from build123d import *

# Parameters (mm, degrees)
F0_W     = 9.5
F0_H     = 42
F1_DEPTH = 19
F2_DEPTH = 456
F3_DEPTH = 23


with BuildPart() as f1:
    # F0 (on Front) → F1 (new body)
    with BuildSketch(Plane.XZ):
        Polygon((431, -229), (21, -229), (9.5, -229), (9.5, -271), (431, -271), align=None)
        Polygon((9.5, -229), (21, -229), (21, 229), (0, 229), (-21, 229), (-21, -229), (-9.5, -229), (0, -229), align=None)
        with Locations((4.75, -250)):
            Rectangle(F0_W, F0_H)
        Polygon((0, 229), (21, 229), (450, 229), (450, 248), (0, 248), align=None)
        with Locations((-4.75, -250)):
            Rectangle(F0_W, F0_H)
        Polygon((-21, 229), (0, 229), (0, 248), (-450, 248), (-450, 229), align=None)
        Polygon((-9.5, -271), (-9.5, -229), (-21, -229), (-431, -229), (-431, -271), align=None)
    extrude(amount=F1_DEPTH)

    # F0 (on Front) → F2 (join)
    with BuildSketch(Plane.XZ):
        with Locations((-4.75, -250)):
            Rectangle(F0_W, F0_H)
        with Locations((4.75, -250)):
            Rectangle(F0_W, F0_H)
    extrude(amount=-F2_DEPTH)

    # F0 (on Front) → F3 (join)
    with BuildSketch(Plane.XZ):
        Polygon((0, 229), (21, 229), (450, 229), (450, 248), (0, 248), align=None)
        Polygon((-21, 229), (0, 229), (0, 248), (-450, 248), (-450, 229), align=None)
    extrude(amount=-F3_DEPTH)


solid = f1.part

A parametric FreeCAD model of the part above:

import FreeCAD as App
import Part
import Sketcher


def add_polygon(sketch, points):
    """Adds a closed chain of lines whose ends are joined by coincident constraints."""
    first, n = sketch.GeometryCount, len(points)
    for a, b in zip(points, points[1:] + points[:1]):
        sketch.addGeometry(Part.LineSegment(App.Vector(*a, 0), App.Vector(*b, 0)), False)
    for i in range(n):
        sketch.addConstraint(Sketcher.Constraint("Coincident", first + i, 2, first + (i + 1) % n, 1))

doc = App.newDocument("Part")
body = doc.addObject("PartDesign::Body", "Body")

# Sketch on XZ plane
sketch1 = body.newObject("Sketcher::SketchObject", "Sketch")
sketch1.AttachmentSupport = (doc.getObject("XZ_Plane"), [""])
sketch1.MapMode = "FlatFace"
add_polygon(sketch1, [(431, -229), (21, -229), (21, 229), (450, 229), (450, 248), (-450, 248), (-450, 229), (-21, 229), (-21, -229), (-431, -229), (-431, -271), (431, -271)])  # lines 0-11
sketch1.addConstraint([
    Sketcher.Constraint("Horizontal", 0),
    Sketcher.Constraint("Vertical", 1),
    Sketcher.Constraint("Horizontal", 2),
    Sketcher.Constraint("Vertical", 3),
    Sketcher.Constraint("Horizontal", 4),
    Sketcher.Constraint("Vertical", 5),
    Sketcher.Constraint("Horizontal", 6),
    Sketcher.Constraint("Vertical", 7),
    Sketcher.Constraint("Horizontal", 8),
    Sketcher.Constraint("Vertical", 9),
    Sketcher.Constraint("Horizontal", 10),
    Sketcher.Constraint("Vertical", 11),
    Sketcher.Constraint("Symmetric", 0, 2, 6, 2, -1, 1),
    Sketcher.Constraint("Symmetric", 2, 2, 5, 2, -2),
    Sketcher.Constraint("Symmetric", 8, 2, 11, 2, -2),
    Sketcher.Constraint("DistanceX", 0, 2, 0, 1, 410.0),
    Sketcher.Constraint("DistanceX", 2, 1, 2, 2, 429.0),
    Sketcher.Constraint("DistanceX", 4, 2, 4, 1, 900.0),
    Sketcher.Constraint("DistanceY", 1, 1, 1, 2, 458.0),
    Sketcher.Constraint("DistanceY", 3, 1, 3, 2, 19.0),
    Sketcher.Constraint("DistanceY", 9, 2, 9, 1, 42.0),
])
pad1 = body.newObject("PartDesign::Pad", "Pad")
pad1.Profile = sketch1
pad1.Length = 19

# Sketch on XZ plane
sketch2 = body.newObject("Sketcher::SketchObject", "Sketch001")
sketch2.AttachmentSupport = (doc.getObject("XZ_Plane"), [""])
sketch2.MapMode = "FlatFace"
add_polygon(sketch2, [(-10, -229), (-10, -271), (10, -271), (10, -229)])  # lines 0-3
sketch2.addConstraint([
    Sketcher.Constraint("Vertical", 0),
    Sketcher.Constraint("Horizontal", 1),
    Sketcher.Constraint("Vertical", 2),
    Sketcher.Constraint("Horizontal", 3),
    Sketcher.Constraint("DistanceX", 1, 1, 1, 2, 19.0),
    Sketcher.Constraint("DistanceY", 0, 2, 0, 1, 42.0),
    Sketcher.Constraint("DistanceY", 0, 2, -1, 1, 271.0),
    Sketcher.Constraint("DistanceX", 0, 2, -1, 1, 9.5),
])
pad2 = body.newObject("PartDesign::Pad", "Pad001")
pad2.Profile = sketch2
pad2.Length = 456
pad2.Reversed = True

# Sketch on XZ plane
sketch3 = body.newObject("Sketcher::SketchObject", "Sketch002")
sketch3.AttachmentSupport = (doc.getObject("XZ_Plane"), [""])
sketch3.MapMode = "FlatFace"
add_polygon(sketch3, [(450, 229), (450, 248), (-450, 248), (-450, 229)])  # lines 0-3
sketch3.addConstraint([
    Sketcher.Constraint("Vertical", 0),
    Sketcher.Constraint("Horizontal", 1),
    Sketcher.Constraint("Vertical", 2),
    Sketcher.Constraint("Horizontal", 3),
    Sketcher.Constraint("DistanceX", 1, 2, 1, 1, 900.0),
    Sketcher.Constraint("DistanceY", 0, 1, 0, 2, 19.0),
    Sketcher.Constraint("DistanceX", -1, 1, 0, 2, 450.0),
    Sketcher.Constraint("DistanceY", -1, 1, 0, 2, 248.0),
])
pad3 = body.newObject("PartDesign::Pad", "Pad002")
pad3.Profile = sketch3
pad3.Length = 23
pad3.Reversed = True

doc.recompute()
